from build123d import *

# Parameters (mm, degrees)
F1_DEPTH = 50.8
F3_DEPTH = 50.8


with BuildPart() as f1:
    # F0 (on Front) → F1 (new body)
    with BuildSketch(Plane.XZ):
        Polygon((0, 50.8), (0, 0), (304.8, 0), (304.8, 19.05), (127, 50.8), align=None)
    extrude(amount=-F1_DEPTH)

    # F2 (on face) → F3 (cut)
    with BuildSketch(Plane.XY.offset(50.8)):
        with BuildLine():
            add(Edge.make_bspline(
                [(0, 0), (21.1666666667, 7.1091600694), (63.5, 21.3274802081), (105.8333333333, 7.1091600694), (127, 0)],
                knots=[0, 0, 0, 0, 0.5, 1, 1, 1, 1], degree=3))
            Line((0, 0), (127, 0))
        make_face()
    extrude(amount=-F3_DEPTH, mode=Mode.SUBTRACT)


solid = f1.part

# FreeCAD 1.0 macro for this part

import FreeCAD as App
import Part
import Sketcher

V = App.Vector
Q = App.Units.Quantity


def add_polygon(sketch, points):
    """Adds a closed chain of lines whose ends are joined by coincident constraints."""
    first, n = sketch.GeometryCount, len(points)
    for a, b in zip(points, points[1:] + points[:1]):
        sketch.addGeometry(Part.LineSegment(App.Vector(*a, 0), App.Vector(*b, 0)), False)
    for i in range(n):
        sketch.addConstraint(Sketcher.Constraint("Coincident", first + i, 2, first + (i + 1) % n, 1))

doc = App.newDocument("Part")
params = doc.addObject("Spreadsheet::Sheet", "Params")
for row, (alias, value) in enumerate([
    ("sketch1_width", "12 in"),
    ("sketch1_width2", "5 in"),
    ("sketch1_height", "2 in"),
    ("sketch1_height2", "0.75 in"),
    ("pad1_length", "2 in"),
    ("pocket1_length", "2 in"),
], start=1):
    params.set(f"A{row}", alias)
    params.set(f"B{row}", "=" + value)
    params.setAlias(f"B{row}", alias)

body = doc.addObject("PartDesign::Body", "Body")

sketch1 = body.newObject("Sketcher::SketchObject", "Sketch")
sketch1.AttachmentSupport = (doc.getObject("XZ_Plane"), [""])
sketch1.MapMode = "FlatFace"
add_polygon(sketch1, [(0, 51), (0, 0), (305, 0), (305, 19), (127, 51)])
sketch1.addConstraint([
    Sketcher.Constraint("Vertical", 0),
    Sketcher.Constraint("Horizontal", 1),
    Sketcher.Constraint("Vertical", 2),
    Sketcher.Constraint("Horizontal", 4),
    Sketcher.Constraint("Coincident", 0, 2, -1, 1),
    Sketcher.Constraint("DistanceX", 1, 1, 1, 2, Q("12 in")),
    Sketcher.Constraint("DistanceX", 4, 2, 4, 1, Q("5 in")),
    Sketcher.Constraint("DistanceY", 0, 2, 0, 1, Q("2 in")),
    Sketcher.Constraint("DistanceY", 2, 1, 2, 2, Q("0.75 in")),
])
sketch1.setExpression("Constraints[10]", "Params.sketch1_width")
sketch1.setExpression("Constraints[11]", "Params.sketch1_width2")
sketch1.setExpression("Constraints[12]", "Params.sketch1_height")
sketch1.setExpression("Constraints[13]", "Params.sketch1_height2")
pad1 = body.newObject("PartDesign::Pad", "Pad")
pad1.Profile = sketch1
pad1.setExpression("Length", "Params.pad1_length")
pad1.Reversed = True

sketch2 = body.newObject("Sketcher::SketchObject", "Sketch001")
sketch2.AttachmentSupport = (doc.getObject("XY_Plane"), [""])
sketch2.MapMode = "FlatFace"
sketch2.AttachmentOffset = App.Placement(V(0, 0, 2 * 25.4), App.Rotation())
sketch2.addGeometry([
    Part.BSplineCurve([V(0, 0, 0), V(21.166667, 7.10916, 0), V(63.5, 21.32748, 0), V(105.833333, 7.10916, 0), V(127, 0, 0)], [4, 1, 4], [0, 0.5, 1], False, 3, [1, 1, 1, 1, 1], False),
    Part.LineSegment(V(0, 0, 0), V(127, 0, 0)),
], False)
sketch2.addConstraint([
    Sketcher.Constraint("Block", 0),
    Sketcher.Constraint("Coincident", 0, 1, 1, 1),
    Sketcher.Constraint("Coincident", 1, 2, 0, 2),
])
pocket1 = body.newObject("PartDesign::Pocket", "Pocket")
pocket1.Profile = sketch2
pocket1.setExpression("Length", "Params.pocket1_length")

doc.recompute()
